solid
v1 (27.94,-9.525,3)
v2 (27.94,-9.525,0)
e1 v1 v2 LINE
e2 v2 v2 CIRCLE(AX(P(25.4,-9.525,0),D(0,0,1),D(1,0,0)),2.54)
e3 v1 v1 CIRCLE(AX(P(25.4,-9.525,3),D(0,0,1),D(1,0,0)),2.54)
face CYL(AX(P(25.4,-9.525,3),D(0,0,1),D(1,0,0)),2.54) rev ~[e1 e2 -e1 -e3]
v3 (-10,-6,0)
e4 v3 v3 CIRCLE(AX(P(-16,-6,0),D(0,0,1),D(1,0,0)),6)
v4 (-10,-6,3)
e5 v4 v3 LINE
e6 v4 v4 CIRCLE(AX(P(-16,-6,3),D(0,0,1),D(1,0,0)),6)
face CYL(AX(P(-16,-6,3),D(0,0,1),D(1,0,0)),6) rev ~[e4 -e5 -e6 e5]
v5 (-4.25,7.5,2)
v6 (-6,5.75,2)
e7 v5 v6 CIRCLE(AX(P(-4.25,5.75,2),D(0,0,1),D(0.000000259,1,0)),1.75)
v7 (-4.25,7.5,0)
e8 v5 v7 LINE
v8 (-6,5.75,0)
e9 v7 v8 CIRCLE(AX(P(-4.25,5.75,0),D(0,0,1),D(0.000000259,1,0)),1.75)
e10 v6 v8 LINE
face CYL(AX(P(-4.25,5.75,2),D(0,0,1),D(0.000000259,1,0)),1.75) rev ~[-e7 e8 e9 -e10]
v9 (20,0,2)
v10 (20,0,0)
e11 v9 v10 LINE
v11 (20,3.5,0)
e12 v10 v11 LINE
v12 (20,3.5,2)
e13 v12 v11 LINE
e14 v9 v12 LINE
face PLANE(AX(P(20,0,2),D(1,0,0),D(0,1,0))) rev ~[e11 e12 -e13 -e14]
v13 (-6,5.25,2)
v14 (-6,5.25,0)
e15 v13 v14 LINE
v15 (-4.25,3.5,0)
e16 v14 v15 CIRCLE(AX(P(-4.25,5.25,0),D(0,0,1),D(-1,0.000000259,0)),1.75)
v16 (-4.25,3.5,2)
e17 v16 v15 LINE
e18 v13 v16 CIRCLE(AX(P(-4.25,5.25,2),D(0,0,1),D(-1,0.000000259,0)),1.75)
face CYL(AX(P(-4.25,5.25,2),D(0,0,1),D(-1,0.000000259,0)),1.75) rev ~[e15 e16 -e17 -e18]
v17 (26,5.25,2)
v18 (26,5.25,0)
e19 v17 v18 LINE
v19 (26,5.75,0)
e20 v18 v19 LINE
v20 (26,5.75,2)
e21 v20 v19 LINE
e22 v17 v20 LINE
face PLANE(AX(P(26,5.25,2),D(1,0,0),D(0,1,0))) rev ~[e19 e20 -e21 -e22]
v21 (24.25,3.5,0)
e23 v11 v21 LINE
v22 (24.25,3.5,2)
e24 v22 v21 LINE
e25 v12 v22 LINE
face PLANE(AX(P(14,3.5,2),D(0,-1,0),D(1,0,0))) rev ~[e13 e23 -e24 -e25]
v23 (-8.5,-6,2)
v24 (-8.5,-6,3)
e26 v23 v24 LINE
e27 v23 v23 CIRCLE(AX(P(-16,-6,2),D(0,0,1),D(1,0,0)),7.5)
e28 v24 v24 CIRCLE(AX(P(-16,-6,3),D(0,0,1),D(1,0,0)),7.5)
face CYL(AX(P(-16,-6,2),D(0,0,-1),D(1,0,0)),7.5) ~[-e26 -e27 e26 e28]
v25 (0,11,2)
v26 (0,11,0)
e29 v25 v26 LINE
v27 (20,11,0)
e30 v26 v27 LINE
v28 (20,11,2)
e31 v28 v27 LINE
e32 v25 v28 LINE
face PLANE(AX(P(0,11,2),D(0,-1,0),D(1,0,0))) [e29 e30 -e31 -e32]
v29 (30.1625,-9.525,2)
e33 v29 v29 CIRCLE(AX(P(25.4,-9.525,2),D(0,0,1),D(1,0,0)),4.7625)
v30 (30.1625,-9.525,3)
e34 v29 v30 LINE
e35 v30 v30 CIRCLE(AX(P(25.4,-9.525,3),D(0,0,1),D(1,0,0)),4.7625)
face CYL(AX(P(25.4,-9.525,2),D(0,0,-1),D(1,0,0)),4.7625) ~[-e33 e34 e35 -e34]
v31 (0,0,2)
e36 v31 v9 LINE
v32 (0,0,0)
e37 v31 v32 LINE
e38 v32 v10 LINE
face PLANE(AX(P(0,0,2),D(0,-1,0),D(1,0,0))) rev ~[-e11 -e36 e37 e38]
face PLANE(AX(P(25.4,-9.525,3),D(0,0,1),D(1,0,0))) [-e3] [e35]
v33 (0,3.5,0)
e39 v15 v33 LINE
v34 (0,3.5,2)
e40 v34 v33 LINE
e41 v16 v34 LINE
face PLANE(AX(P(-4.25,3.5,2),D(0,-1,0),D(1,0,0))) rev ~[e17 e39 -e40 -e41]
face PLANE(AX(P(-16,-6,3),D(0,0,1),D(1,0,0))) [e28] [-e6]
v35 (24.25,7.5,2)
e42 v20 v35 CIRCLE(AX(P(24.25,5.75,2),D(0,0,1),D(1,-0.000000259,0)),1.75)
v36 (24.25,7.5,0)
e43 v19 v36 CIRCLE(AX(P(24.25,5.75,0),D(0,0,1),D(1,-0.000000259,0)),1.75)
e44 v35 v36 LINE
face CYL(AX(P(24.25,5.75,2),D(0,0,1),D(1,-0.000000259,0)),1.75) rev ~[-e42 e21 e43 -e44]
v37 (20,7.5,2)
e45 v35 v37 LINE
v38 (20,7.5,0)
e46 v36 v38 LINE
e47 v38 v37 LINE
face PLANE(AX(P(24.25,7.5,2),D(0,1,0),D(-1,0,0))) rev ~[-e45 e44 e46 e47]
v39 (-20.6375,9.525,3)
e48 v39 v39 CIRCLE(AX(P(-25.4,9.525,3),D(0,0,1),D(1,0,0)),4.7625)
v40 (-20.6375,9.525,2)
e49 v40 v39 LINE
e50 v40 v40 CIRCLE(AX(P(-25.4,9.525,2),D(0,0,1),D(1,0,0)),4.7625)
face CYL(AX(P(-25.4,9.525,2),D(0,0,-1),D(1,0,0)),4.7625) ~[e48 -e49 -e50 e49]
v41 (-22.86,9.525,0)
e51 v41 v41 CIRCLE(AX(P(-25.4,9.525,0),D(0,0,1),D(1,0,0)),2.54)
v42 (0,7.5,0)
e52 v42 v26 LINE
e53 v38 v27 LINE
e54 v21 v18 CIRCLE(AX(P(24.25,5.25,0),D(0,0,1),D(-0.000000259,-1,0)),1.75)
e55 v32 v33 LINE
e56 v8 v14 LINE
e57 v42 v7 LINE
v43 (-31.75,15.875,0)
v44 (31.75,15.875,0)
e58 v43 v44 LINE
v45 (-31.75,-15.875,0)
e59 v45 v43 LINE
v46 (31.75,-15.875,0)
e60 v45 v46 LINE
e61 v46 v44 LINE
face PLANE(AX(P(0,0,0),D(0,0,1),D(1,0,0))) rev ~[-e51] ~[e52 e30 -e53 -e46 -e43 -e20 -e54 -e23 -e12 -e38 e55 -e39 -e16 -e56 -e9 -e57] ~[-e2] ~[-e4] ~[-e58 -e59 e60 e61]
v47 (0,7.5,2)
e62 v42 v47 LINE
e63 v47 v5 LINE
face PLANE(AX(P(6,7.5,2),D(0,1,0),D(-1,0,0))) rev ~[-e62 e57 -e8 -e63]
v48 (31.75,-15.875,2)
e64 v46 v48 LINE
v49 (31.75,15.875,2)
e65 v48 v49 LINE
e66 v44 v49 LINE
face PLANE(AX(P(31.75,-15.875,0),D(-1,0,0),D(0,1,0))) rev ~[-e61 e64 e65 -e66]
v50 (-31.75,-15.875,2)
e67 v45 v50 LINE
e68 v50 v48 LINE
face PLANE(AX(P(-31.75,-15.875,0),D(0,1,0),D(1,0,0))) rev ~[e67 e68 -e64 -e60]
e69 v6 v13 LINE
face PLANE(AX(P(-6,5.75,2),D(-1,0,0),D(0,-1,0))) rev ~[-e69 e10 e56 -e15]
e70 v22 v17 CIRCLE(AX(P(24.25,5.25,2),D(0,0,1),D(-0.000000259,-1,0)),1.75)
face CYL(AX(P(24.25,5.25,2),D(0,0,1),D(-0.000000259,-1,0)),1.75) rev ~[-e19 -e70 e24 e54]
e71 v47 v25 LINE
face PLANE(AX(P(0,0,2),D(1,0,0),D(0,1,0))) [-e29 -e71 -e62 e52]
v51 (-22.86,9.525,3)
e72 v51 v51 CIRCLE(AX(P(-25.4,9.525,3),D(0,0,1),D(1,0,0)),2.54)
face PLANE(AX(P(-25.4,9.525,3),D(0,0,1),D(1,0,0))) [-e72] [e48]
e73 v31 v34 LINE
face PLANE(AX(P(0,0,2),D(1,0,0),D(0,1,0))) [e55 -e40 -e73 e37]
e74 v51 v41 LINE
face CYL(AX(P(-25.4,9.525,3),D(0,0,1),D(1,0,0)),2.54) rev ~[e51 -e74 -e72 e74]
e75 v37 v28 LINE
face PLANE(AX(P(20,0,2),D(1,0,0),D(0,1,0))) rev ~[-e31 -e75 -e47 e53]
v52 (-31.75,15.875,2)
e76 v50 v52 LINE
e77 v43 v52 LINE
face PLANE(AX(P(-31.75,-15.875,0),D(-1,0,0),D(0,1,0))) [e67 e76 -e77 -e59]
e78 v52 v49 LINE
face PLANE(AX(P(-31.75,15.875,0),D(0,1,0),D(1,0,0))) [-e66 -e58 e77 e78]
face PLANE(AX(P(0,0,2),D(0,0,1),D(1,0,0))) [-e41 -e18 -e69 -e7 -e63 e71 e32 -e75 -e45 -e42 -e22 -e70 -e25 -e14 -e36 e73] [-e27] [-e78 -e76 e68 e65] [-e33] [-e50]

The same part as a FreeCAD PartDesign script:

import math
import FreeCAD as App
import Part
import Sketcher

V = App.Vector
Q = App.Units.Quantity


def add_polygon(sketch, points):
    """Adds a closed chain of lines whose ends are joined by coincident constraints."""
    first, n = sketch.GeometryCount, len(points)
    for a, b in zip(points, points[1:] + points[:1]):
        sketch.addGeometry(Part.LineSegment(App.Vector(*a, 0), App.Vector(*b, 0)), False)
    for i in range(n):
        sketch.addConstraint(Sketcher.Constraint("Coincident", first + i, 2, first + (i + 1) % n, 1))

doc = App.newDocument("Part")
body = doc.addObject("PartDesign::Body", "Body")

sketch1 = body.newObject("Sketcher::SketchObject", "Sketch")
sketch1.AttachmentSupport = (doc.getObject("XY_Plane"), [""])
sketch1.MapMode = "FlatFace"
add_polygon(sketch1, [(-32, 16), (-32, -16), (32, -16), (32, 16)])
sketch1.addConstraint([
    Sketcher.Constraint("Vertical", 0),
    Sketcher.Constraint("Horizontal", 1),
    Sketcher.Constraint("Vertical", 2),
    Sketcher.Constraint("Horizontal", 3),
    Sketcher.Constraint("Symmetric", 0, 2, 2, 2, -1, 1),
    Sketcher.Constraint("DistanceX", 1, 1, 1, 2, Q("63.5 mm")),
    Sketcher.Constraint("DistanceY", 0, 2, 0, 1, Q("31.75 mm")),
])
pad1 = body.newObject("PartDesign::Pad", "Pad")
pad1.Profile = sketch1
pad1.Length = 2

sketch2 = body.newObject("Sketcher::SketchObject", "Sketch001")
sketch2.AttachmentSupport = (doc.getObject("XY_Plane"), [""])
sketch2.MapMode = "FlatFace"
sketch2.AttachmentOffset = App.Placement(V(0, 0, 2), App.Rotation())
sketch2.addGeometry(Part.Circle(V(-25.4, 9.5, 0), V(0, 0, 1), 4.8), False)
sketch2.addConstraint([
    Sketcher.Constraint("Diameter", 0, Q("9.525 mm")),
    Sketcher.Constraint("DistanceX", 0, 3, -1, 1, Q("25.4 mm")),
    Sketcher.Constraint("DistanceY", -1, 1, 0, 3, Q("9.525 mm")),
])
pad2 = body.newObject("PartDesign::Pad", "Pad001")
pad2.Profile = sketch2
pad2.Length = 1

sketch3 = body.newObject("Sketcher::SketchObject", "Sketch002")
sketch3.AttachmentSupport = (doc.getObject("XY_Plane"), [""])
sketch3.MapMode = "FlatFace"
sketch3.AttachmentOffset = App.Placement(V(0, 0, 3), App.Rotation())
sketch3.addGeometry(Part.Circle(V(-25.4, 9.5, 0), V(0, 0, 1), 2.5), False)
sketch3.addConstraint([
    Sketcher.Constraint("Diameter", 0, Q("5.08 mm")),
    Sketcher.Constraint("DistanceX", 0, 3, -1, 1, Q("25.4 mm")),
    Sketcher.Constraint("DistanceY", -1, 1, 0, 3, Q("9.525 mm")),
])
pocket1 = body.newObject("PartDesign::Pocket", "Pocket")
pocket1.Profile = sketch3
pocket1.Length = 25.4

sketch4 = body.newObject("Sketcher::SketchObject", "Sketch003")
sketch4.AttachmentSupport = (doc.getObject("XY_Plane"), [""])
sketch4.MapMode = "FlatFace"
sketch4.AttachmentOffset = App.Placement(V(0, 0, 2), App.Rotation())
add_polygon(sketch4, [(0, 11), (0, 0), (20, 0), (20, 11)])
sketch4.addConstraint([
    Sketcher.Constraint("Vertical", 0),
    Sketcher.Constraint("Horizontal", 1),
    Sketcher.Constraint("Vertical", 2),
    Sketcher.Constraint("Horizontal", 3),
    Sketcher.Constraint("Coincident", 0, 2, -1, 1),
    Sketcher.Constraint("DistanceX", 1, 1, 1, 2, Q("20 mm")),
    Sketcher.Constraint("DistanceY", 0, 2, 0, 1, Q("11 mm")),
])
pocket2 = body.newObject("PartDesign::Pocket", "Pocket001")
pocket2.Profile = sketch4
pocket2.Length = 25

sketch5 = body.newObject("Sketcher::SketchObject", "Sketch004")
sketch5.AttachmentSupport = (doc.getObject("XY_Plane"), [""])
sketch5.MapMode = "FlatFace"
sketch5.AttachmentOffset = App.Placement(V(0, 0, 2), App.Rotation())
sketch5.addGeometry(Part.Circle(V(-16, -6, 0), V(0, 0, 1), 8), False)
sketch5.addConstraint([
    Sketcher.Constraint("Diameter", 0, Q("15 mm")),
    Sketcher.Constraint("DistanceX", 0, 3, -1, 1, Q("16 mm")),
    Sketcher.Constraint("DistanceY", 0, 3, -1, 1, Q("6 mm")),
])
pad3 = body.newObject("PartDesign::Pad", "Pad002")
pad3.Profile = sketch5
pad3.Length = 1

sketch6 = body.newObject("Sketcher::SketchObject", "Sketch005")
sketch6.AttachmentSupport = (doc.getObject("XY_Plane"), [""])
sketch6.MapMode = "FlatFace"
sketch6.AttachmentOffset = App.Placement(V(0, 0, 3), App.Rotation())
sketch6.addGeometry(Part.Circle(V(-16, -6, 0), V(0, 0, 1), 6), False)
sketch6.addConstraint([
    Sketcher.Constraint("Diameter", 0, Q("12 mm")),
    Sketcher.Constraint("DistanceX", 0, 3, -1, 1, Q("16 mm")),
    Sketcher.Constraint("DistanceY", 0, 3, -1, 1, Q("6 mm")),
])
pocket3 = body.newObject("PartDesign::Pocket", "Pocket002")
pocket3.Profile = sketch6
pocket3.Length = 25

sketch7 = body.newObject("Sketcher::SketchObject", "Sketch006")
sketch7.AttachmentSupport = (doc.getObject("XY_Plane"), [""])
sketch7.MapMode = "FlatFace"
sketch7.AttachmentOffset = App.Placement(V(0, 0, 2), App.Rotation())
sketch7.addGeometry(Part.Circle(V(25.4, -9.5, 0), V(0, 0, 1), 4.8), False)
sketch7.addConstraint([
    Sketcher.Constraint("Diameter", 0, Q("9.525 mm")),
    Sketcher.Constraint("DistanceX", -1, 1, 0, 3, Q("25.4 mm")),
    Sketcher.Constraint("DistanceY", 0, 3, -1, 1, Q("9.525 mm")),
])
pad4 = body.newObject("PartDesign::Pad", "Pad003")
pad4.Profile = sketch7
pad4.Length = 1

sketch8 = body.newObject("Sketcher::SketchObject", "Sketch007")
sketch8.AttachmentSupport = (doc.getObject("XY_Plane"), [""])
sketch8.MapMode = "FlatFace"
sketch8.AttachmentOffset = App.Placement(V(0, 0, 3), App.Rotation())
sketch8.addGeometry(Part.Circle(V(25.4, -9.5, 0), V(0, 0, 1), 2.5), False)
sketch8.addConstraint([
    Sketcher.Constraint("Diameter", 0, Q("5.08 mm")),
    Sketcher.Constraint("DistanceX", -1, 1, 0, 3, Q("25.4 mm")),
    Sketcher.Constraint("DistanceY", 0, 3, -1, 1, Q("9.525 mm")),
])
pocket4 = body.newObject("PartDesign::Pocket", "Pocket003")
pocket4.Profile = sketch8
pocket4.Length = 25.4

sketch9 = body.newObject("Sketcher::SketchObject", "Sketch008")
sketch9.AttachmentSupport = (doc.getObject("XY_Plane"), [""])
sketch9.MapMode = "FlatFace"
sketch9.AttachmentOffset = App.Placement(V(0, 0, 2), App.Rotation())
sketch9.addGeometry([
    Part.LineSegment(V(6, 3.5, 0), V(6, 7.5, 0)),
    Part.LineSegment(V(6, 7.5, 0), V(-4.2, 7.5, 0)),
    Part.ArcOfCircle(Part.Circle(V(-4.3, 5.8, 0), V(0, 0, 1), 1.7), math.radians(90), math.radians(180)),
    Part.LineSegment(V(-6, 5.8, 0), V(-6, 5.2, 0)),
    Part.ArcOfCircle(Part.Circle(V(-4.3, 5.2, 0), V(0, 0, 1), 1.7), math.radians(180), math.radians(270)),
    Part.LineSegment(V(-4.2, 3.5, 0), V(6, 3.5, 0)),
    Part.LineSegment(V(14, 3.5, 0), V(24.2, 3.5, 0)),
    Part.ArcOfCircle(Part.Circle(V(24.3, 5.2, 0), V(0, 0, 1), 1.7), math.radians(-90), math.radians(0)),
    Part.LineSegment(V(26, 5.2, 0), V(26, 5.8, 0)),
    Part.ArcOfCircle(Part.Circle(V(24.3, 5.8, 0), V(0, 0, 1), 1.7), math.radians(0), math.radians(90)),
    Part.LineSegment(V(24.2, 7.5, 0), V(14, 7.5, 0)),
    Part.LineSegment(V(14, 7.5, 0), V(14, 3.5, 0)),
], False)
sketch9.addConstraint([
    Sketcher.Constraint("Coincident", 0, 2, 1, 1),
    Sketcher.Constraint("Tangent", 1, 2, 2, 1),
    Sketcher.Constraint("Tangent", 2, 2, 3, 1),
    Sketcher.Constraint("Tangent", 3, 2, 4, 1),
    Sketcher.Constraint("Tangent", 4, 2, 5, 1),
    Sketcher.Constraint("Coincident", 5, 2, 0, 1),
    Sketcher.Constraint("Tangent", 6, 2, 7, 1),
    Sketcher.Constraint("Tangent", 7, 2, 8, 1),
    Sketcher.Constraint("Tangent", 8, 2, 9, 1),
    Sketcher.Constraint("Tangent", 9, 2, 10, 1),
    Sketcher.Constraint("Coincident", 10, 2, 11, 1),
    Sketcher.Constraint("Coincident", 11, 2, 6, 1),
    Sketcher.Constraint("Vertical", 0),
    Sketcher.Constraint("Horizontal", 1),
    Sketcher.Constraint("Vertical", 3),
    Sketcher.Constraint("Horizontal", 5),
    Sketcher.Constraint("Horizontal", 6),
    Sketcher.Constraint("Vertical", 8),
    Sketcher.Constraint("Horizontal", 10),
    Sketcher.Constraint("Vertical", 11),
    Sketcher.Constraint("Equal", 2, 4),
    Sketcher.Constraint("Equal", 4, 7),
    Sketcher.Constraint("Equal", 7, 9),
    Sketcher.Constraint("Horizontal", 4, 3, 7, 3),
    Sketcher.Constraint("Horizontal", 2, 3, 9, 3),
    Sketcher.Constraint("Equal", 5, 6),
    Sketcher.Constraint("DistanceY", 0, 1, 0, 2, Q("4 mm")),
    Sketcher.Constraint("Radius", 2, Q("1.75 mm")),
    Sketcher.Constraint("DistanceX", -1, 1, 0, 2, Q("6 mm")),
    Sketcher.Constraint("DistanceX", 2, 2, -1, 1, Q("6 mm")),
    Sketcher.Constraint("DistanceX", -1, 1, 7, 2, Q("26 mm")),
    Sketcher.Constraint("DistanceY", -1, 1, 0, 2, Q("7.5 mm")),
])
pocket5 = body.newObject("PartDesign::Pocket", "Pocket004")
pocket5.Profile = sketch9
pocket5.Length = 25

doc.recompute()
